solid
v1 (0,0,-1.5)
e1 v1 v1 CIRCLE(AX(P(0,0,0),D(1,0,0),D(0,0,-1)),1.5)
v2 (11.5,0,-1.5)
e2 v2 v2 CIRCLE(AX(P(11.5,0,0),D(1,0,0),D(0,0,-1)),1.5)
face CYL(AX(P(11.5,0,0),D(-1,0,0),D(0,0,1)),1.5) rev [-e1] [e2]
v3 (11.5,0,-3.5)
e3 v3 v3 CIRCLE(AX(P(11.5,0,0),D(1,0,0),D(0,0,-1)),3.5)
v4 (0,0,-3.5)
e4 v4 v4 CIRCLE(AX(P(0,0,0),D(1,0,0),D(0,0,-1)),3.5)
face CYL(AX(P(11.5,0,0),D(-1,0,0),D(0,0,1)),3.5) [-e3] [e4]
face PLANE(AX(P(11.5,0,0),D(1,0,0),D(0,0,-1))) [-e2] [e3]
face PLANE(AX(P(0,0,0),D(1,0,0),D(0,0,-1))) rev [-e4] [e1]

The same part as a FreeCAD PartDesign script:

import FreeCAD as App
import Part
import Sketcher
Q = App.Units.Quantity

doc = App.newDocument("Part")
body = doc.addObject("PartDesign::Body", "Body")

# Sketch on YZ plane
sketch1 = doc.addObject("Sketcher::SketchObject", "Sketch")
body.addObject(sketch1)
sketch1.AttachmentSupport = (doc.YZ_Plane, [""])
sketch1.MapMode = "FlatFace"
sketch1.addGeometry(Part.Circle(App.Vector(0, 0, 0), App.Vector(0, 0, 1), 3.5), False)
sketch1.addGeometry(Part.Circle(App.Vector(0, 0, 0), App.Vector(0, 0, 1), 1.5), False)
sketch1.addConstraint(Sketcher.Constraint("Coincident", 0, 3, -1, 1))
sketch1.addConstraint(Sketcher.Constraint("Coincident", 1, 3, -1, 1))
sketch1.addConstraint(Sketcher.Constraint("Diameter", 0, Q("7 mm")))
sketch1.addConstraint(Sketcher.Constraint("Diameter", 1, Q("3 mm")))
pad1 = doc.addObject("PartDesign::Pad", "Pad")
body.addObject(pad1)
pad1.Profile = sketch1
pad1.Length = 11.5

doc.recompute()
